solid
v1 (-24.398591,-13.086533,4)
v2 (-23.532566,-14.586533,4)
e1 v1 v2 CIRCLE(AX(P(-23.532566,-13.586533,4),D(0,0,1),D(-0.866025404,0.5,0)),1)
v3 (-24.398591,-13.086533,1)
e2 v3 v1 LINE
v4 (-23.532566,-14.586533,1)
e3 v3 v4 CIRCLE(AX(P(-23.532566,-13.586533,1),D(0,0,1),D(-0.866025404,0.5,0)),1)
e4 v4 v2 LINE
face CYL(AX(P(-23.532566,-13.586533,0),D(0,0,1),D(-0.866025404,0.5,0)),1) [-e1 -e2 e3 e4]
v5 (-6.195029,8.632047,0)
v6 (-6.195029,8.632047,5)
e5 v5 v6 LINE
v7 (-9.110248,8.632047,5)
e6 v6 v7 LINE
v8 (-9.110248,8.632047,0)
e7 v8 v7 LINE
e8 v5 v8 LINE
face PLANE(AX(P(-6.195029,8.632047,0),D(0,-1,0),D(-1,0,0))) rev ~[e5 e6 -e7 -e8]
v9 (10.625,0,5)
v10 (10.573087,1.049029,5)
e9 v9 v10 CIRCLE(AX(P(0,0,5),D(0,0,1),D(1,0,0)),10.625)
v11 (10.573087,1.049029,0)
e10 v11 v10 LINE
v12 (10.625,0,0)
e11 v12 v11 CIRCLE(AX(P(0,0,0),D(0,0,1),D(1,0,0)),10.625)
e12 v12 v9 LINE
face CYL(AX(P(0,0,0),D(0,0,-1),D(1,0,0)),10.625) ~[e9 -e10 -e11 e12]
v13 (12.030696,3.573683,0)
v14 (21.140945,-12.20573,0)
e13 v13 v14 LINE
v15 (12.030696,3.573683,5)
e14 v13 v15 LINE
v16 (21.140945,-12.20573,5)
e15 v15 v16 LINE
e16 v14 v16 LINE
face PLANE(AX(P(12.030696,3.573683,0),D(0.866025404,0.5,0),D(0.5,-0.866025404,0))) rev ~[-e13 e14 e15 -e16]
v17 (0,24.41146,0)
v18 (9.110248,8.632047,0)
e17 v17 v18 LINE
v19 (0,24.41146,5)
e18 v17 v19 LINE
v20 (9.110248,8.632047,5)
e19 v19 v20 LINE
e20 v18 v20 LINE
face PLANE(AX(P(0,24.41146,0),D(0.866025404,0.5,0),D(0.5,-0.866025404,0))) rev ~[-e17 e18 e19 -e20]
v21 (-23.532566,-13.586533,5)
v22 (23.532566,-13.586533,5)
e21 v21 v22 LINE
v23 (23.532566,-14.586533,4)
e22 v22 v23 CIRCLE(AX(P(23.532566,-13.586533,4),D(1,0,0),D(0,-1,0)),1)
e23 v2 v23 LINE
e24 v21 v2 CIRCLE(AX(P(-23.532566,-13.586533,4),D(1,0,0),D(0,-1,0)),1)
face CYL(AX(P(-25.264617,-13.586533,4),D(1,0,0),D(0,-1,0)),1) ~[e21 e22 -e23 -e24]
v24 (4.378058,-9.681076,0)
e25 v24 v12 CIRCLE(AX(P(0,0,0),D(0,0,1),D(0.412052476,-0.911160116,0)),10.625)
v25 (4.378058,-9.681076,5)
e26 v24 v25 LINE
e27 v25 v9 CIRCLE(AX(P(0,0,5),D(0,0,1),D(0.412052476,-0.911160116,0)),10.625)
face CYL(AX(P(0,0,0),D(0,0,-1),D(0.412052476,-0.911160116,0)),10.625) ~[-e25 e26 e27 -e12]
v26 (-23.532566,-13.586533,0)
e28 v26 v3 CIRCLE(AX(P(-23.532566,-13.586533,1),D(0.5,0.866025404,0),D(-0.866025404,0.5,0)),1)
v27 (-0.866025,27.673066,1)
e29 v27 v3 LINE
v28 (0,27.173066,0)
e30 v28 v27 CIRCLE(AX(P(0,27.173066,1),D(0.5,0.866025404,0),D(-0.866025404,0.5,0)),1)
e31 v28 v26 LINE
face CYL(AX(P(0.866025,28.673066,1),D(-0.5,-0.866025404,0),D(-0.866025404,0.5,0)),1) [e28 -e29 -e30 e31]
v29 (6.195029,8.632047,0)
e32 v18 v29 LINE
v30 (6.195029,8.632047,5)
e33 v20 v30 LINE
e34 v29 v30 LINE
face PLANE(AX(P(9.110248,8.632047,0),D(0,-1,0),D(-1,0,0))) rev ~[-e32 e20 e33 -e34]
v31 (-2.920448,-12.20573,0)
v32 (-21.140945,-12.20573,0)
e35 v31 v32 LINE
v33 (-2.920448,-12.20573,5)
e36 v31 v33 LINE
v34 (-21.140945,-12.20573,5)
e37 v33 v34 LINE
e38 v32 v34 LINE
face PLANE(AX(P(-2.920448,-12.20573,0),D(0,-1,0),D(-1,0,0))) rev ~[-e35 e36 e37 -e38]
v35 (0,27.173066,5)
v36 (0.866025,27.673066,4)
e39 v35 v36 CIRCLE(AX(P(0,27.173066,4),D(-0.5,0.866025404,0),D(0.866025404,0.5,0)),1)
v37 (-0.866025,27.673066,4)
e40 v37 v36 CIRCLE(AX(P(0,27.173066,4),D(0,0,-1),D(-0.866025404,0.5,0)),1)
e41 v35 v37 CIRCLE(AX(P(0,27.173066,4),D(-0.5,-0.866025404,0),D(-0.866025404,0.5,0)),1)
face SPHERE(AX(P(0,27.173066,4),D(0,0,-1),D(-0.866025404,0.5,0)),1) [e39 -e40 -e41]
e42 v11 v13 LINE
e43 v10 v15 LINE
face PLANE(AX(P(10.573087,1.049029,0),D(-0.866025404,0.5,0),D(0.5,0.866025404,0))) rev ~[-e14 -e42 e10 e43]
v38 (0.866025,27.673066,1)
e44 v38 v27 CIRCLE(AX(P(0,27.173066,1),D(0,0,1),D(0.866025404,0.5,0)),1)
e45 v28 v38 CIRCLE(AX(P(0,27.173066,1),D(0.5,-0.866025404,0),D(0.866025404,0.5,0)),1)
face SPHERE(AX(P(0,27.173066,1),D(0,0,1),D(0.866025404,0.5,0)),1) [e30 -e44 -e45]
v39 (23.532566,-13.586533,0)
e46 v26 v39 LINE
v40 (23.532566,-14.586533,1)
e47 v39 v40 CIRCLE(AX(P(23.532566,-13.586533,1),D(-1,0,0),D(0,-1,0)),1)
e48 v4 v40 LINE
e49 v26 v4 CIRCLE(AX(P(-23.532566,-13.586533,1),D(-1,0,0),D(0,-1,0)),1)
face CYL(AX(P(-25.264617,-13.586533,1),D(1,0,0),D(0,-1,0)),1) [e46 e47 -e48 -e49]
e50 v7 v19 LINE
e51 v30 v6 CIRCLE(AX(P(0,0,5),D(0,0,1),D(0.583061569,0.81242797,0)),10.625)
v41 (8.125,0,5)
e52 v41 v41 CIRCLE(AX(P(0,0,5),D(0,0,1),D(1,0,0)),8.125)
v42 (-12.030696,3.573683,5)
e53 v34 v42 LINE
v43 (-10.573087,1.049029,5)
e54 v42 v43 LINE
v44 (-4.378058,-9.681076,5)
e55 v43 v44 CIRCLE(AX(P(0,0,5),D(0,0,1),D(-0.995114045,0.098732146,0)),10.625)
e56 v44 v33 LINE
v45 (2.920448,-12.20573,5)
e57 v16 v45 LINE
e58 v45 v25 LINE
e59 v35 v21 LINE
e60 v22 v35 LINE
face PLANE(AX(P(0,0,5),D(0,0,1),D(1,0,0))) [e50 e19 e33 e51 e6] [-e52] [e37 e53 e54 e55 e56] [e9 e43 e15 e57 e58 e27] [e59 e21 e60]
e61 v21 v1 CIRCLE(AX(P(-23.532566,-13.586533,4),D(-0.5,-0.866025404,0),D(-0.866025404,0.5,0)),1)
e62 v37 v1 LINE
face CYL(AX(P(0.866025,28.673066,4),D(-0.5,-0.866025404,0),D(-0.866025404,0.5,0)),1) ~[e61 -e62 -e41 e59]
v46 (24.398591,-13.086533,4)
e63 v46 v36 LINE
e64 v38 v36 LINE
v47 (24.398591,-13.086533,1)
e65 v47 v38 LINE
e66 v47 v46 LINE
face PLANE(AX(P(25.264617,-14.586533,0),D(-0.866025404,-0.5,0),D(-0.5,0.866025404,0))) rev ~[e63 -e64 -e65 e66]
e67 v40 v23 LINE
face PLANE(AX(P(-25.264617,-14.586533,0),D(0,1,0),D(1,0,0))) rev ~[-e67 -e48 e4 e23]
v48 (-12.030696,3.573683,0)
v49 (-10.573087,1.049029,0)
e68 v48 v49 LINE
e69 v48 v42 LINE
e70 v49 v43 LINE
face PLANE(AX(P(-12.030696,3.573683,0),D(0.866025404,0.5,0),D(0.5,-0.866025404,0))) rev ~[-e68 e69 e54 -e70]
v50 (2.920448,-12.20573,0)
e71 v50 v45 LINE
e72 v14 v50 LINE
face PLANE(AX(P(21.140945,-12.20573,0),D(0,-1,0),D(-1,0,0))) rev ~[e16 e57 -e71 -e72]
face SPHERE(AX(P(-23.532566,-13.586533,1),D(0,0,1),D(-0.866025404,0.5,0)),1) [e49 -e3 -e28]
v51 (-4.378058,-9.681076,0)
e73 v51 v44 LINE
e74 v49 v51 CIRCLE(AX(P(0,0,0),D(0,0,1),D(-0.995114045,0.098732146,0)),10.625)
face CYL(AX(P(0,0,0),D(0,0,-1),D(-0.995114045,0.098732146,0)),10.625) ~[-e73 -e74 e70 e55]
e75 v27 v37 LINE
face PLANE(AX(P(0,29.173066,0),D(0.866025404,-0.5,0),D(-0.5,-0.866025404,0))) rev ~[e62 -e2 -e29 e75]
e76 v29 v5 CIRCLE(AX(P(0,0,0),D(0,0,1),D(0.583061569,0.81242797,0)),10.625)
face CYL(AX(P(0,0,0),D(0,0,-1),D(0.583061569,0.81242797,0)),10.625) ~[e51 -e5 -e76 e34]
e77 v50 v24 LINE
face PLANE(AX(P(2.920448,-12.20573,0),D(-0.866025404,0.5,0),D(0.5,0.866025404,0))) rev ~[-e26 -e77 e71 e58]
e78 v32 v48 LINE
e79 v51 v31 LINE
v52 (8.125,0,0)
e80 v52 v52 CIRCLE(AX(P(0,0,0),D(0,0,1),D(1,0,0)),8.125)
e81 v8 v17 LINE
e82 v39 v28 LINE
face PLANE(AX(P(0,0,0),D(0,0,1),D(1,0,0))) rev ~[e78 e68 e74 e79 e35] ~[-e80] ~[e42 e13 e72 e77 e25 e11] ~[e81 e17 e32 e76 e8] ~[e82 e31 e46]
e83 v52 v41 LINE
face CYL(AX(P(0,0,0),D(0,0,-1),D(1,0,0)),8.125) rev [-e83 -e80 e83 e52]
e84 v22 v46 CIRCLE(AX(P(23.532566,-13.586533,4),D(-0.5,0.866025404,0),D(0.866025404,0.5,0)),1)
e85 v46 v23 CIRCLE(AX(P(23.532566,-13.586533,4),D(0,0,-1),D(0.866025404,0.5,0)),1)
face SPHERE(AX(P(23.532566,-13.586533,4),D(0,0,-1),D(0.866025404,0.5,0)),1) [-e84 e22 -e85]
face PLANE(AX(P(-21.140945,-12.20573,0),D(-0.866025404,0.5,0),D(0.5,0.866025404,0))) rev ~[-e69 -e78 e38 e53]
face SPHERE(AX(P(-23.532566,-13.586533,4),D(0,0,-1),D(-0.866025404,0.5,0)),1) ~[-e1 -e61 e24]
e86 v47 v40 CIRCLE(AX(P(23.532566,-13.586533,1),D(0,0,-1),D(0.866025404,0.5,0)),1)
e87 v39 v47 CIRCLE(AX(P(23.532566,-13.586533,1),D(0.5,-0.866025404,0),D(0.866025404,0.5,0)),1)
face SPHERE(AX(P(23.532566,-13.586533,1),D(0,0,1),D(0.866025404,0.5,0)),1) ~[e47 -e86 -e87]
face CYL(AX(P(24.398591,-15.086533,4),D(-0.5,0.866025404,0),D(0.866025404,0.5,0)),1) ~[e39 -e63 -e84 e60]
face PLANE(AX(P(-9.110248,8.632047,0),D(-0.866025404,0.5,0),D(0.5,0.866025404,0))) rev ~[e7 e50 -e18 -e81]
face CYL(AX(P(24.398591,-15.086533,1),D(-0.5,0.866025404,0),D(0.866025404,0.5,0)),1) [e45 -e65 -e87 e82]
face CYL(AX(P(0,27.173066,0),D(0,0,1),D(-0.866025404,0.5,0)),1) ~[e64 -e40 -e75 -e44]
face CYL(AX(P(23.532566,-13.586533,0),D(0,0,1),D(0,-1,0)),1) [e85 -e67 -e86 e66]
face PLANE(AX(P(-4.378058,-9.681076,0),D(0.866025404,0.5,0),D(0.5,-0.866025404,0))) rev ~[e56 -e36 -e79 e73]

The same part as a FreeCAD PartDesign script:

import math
import FreeCAD as App
import Part
import Sketcher
Q = App.Units.Quantity


def edges_at(feature, points):
    """Names of the edges that pass closest to the given points."""
    edges = feature.Shape.Edges
    near = lambda p: min(range(len(edges)), key=lambda i: edges[i].distToShape(Part.Vertex(*p))[0])
    return sorted({f"Edge{near(p) + 1}" for p in points})

doc = App.newDocument("Part")
params = doc.addObject("Spreadsheet::Sheet", "Params")
for row, (alias, value) in enumerate([
    ("sketch1_diameter", "16.25 mm"),
    ("pad1_length", "5 mm"),
    ("fillet_radius", "1 mm"),
], start=1):
    params.set(f"A{row}", alias)
    params.set(f"B{row}", "=" + value)
    params.setAlias(f"B{row}", alias)

body = doc.addObject("PartDesign::Body", "Body")

sketch1 = body.newObject("Sketcher::SketchObject", "Sketch")
sketch1.AttachmentSupport = (doc.getObject("XY_Plane"), [""])
sketch1.MapMode = "FlatFace"
sketch1.addGeometry([
    Part.LineSegment(App.Vector(0, 29.2, 0), App.Vector(-25.3, -14.6, 0)),
    Part.LineSegment(App.Vector(-25.3, -14.6, 0), App.Vector(25.3, -14.6, 0)),
    Part.LineSegment(App.Vector(25.3, -14.6, 0), App.Vector(0, 29.2, 0)),
    Part.LineSegment(App.Vector(-12, 3.6, 0), App.Vector(-10.6, 1, 0)),
    Part.ArcOfCircle(Part.Circle(App.Vector(0, 0, 0), App.Vector(0, 0, 1), 10.6), math.radians(174), math.radians(246)),
    Part.LineSegment(App.Vector(-4.4, -9.7, 0), App.Vector(-2.9, -12.2, 0)),
    Part.LineSegment(App.Vector(-2.9, -12.2, 0), App.Vector(-21.1, -12.2, 0)),
    Part.LineSegment(App.Vector(-21.1, -12.2, 0), App.Vector(-12, 3.6, 0)),
    Part.LineSegment(App.Vector(2.9, -12.2, 0), App.Vector(4.4, -9.7, 0)),
    Part.ArcOfCircle(Part.Circle(App.Vector(0, 0, 0), App.Vector(0, 0, 1), 10.6), math.radians(-66), math.radians(0)),
    Part.ArcOfCircle(Part.Circle(App.Vector(0, 0, 0), App.Vector(0, 0, 1), 10.6), math.radians(0), math.radians(5.67)),
    Part.LineSegment(App.Vector(10.6, 1, 0), App.Vector(12, 3.6, 0)),
    Part.LineSegment(App.Vector(12, 3.6, 0), App.Vector(21.1, -12.2, 0)),
    Part.LineSegment(App.Vector(21.1, -12.2, 0), App.Vector(2.9, -12.2, 0)),
    Part.Circle(App.Vector(0, 0, 0), App.Vector(0, 0, 1), 8.1),
    Part.LineSegment(App.Vector(9.1, 8.6, 0), App.Vector(6.2, 8.6, 0)),
    Part.ArcOfCircle(Part.Circle(App.Vector(0, 0, 0), App.Vector(0, 0, 1), 10.6), math.radians(54), math.radians(126)),
    Part.LineSegment(App.Vector(-6.2, 8.6, 0), App.Vector(-9.1, 8.6, 0)),
    Part.LineSegment(App.Vector(-9.1, 8.6, 0), App.Vector(0, 24.4, 0)),
    Part.LineSegment(App.Vector(0, 24.4, 0), App.Vector(9.1, 8.6, 0)),
], False)
sketch1.addConstraint([
    Sketcher.Constraint("Coincident", 0, 2, 1, 1),
    Sketcher.Constraint("Coincident", 1, 2, 2, 1),
    Sketcher.Constraint("Coincident", 2, 2, 0, 1),
    Sketcher.Constraint("Coincident", 3, 2, 4, 1),
    Sketcher.Constraint("Coincident", 4, 2, 5, 1),
    Sketcher.Constraint("Coincident", 5, 2, 6, 1),
    Sketcher.Constraint("Coincident", 6, 2, 7, 1),
    Sketcher.Constraint("Coincident", 7, 2, 3, 1),
    Sketcher.Constraint("Coincident", 8, 2, 9, 1),
    Sketcher.Constraint("Tangent", 9, 2, 10, 1),
    Sketcher.Constraint("Coincident", 10, 2, 11, 1),
    Sketcher.Constraint("Coincident", 11, 2, 12, 1),
    Sketcher.Constraint("Coincident", 12, 2, 13, 1),
    Sketcher.Constraint("Coincident", 13, 2, 8, 1),
    Sketcher.Constraint("Coincident", 15, 2, 16, 1),
    Sketcher.Constraint("Coincident", 16, 2, 17, 1),
    Sketcher.Constraint("Coincident", 17, 2, 18, 1),
    Sketcher.Constraint("Coincident", 18, 2, 19, 1),
    Sketcher.Constraint("Coincident", 19, 2, 15, 1),
    Sketcher.Constraint("Horizontal", 1),
    Sketcher.Constraint("Horizontal", 6),
    Sketcher.Constraint("Horizontal", 13),
    Sketcher.Constraint("Horizontal", 15),
    Sketcher.Constraint("Horizontal", 17),
    Sketcher.Constraint("Coincident", 4, 3, -1, 1),
    Sketcher.Constraint("Coincident", 9, 3, -1, 1),
    Sketcher.Constraint("Coincident", 14, 3, -1, 1),
    Sketcher.Constraint("Coincident", 16, 3, -1, 1),
    Sketcher.Constraint("Equal", 4, 9),
    Sketcher.Constraint("Equal", 9, 10),
    Sketcher.Constraint("Equal", 10, 16),
    Sketcher.Constraint("Symmetric", 7, 2, 11, 2, -2),
    Sketcher.Constraint("Symmetric", 6, 2, 12, 2, -2),
    Sketcher.Constraint("Symmetric", 17, 2, 19, 2, -2),
    Sketcher.Constraint("PointOnObject", 2, 2, -2),
    Sketcher.Constraint("PointOnObject", 9, 2, -1),
    Sketcher.Constraint("PointOnObject", 18, 2, -2),
    Sketcher.Constraint("Parallel", 2, 3),
    Sketcher.Constraint("Parallel", 3, 5),
    Sketcher.Constraint("Parallel", 0, 7),
    Sketcher.Constraint("Parallel", 7, 8),
    Sketcher.Constraint("Parallel", 8, 11),
    Sketcher.Constraint("Parallel", 5, 12),
    Sketcher.Constraint("Parallel", 11, 18),
    Sketcher.Constraint("Horizontal", 4, 2, 8, 2),
    Sketcher.Constraint("Equal", 3, 5),
    Sketcher.Constraint("Equal", 12, 18),
    Sketcher.Constraint("Diameter", 14, Q("16.25 mm")),
    Sketcher.Constraint("Angle", 0, Q("-120 deg")),
    Sketcher.Constraint("Radius", 4, Q("10.625 mm")),
    Sketcher.Constraint("DistanceX", 15, 2, 15, 1, Q("2.915219 mm")),
    Sketcher.Constraint("Distance", 3, Q("2.915219 mm")),
    Sketcher.Constraint("DistanceX", 1, 1, 1, 2, Q("50.529233 mm")),
    Sketcher.Constraint("DistanceX", 6, 2, 6, 1, Q("18.220497 mm")),
    Sketcher.Constraint("DistanceY", -1, 1, 3, 2, Q("1.049029 mm")),
    Sketcher.Constraint("DistanceY", 0, 2, -1, 1, Q("14.586533 mm")),
])
sketch1.setExpression("Constraints[47]", "Params.sketch1_diameter")
pad1 = body.newObject("PartDesign::Pad", "Pad")
pad1.Profile = sketch1
pad1.setExpression("Length", "Params.pad1_length")
doc.recompute()

fillet = body.newObject("PartDesign::Fillet", "Fillet")
fillet.Base = (pad1, edges_at(pad1, [
    (12.632, 7.293, 0),
    (-12.632, 7.293, 0),
    (0, -14.587, 0),
    (-12.632, 7.293, 5),
    (12.632, 7.293, 5),
    (0, -14.587, 5),
    (-25.265, -14.587, 2.5),
    (0, 29.173, 2.5),
    (25.265, -14.587, 2.5),
]))
fillet.setExpression("Radius", "Params.fillet_radius")

doc.recompute()
